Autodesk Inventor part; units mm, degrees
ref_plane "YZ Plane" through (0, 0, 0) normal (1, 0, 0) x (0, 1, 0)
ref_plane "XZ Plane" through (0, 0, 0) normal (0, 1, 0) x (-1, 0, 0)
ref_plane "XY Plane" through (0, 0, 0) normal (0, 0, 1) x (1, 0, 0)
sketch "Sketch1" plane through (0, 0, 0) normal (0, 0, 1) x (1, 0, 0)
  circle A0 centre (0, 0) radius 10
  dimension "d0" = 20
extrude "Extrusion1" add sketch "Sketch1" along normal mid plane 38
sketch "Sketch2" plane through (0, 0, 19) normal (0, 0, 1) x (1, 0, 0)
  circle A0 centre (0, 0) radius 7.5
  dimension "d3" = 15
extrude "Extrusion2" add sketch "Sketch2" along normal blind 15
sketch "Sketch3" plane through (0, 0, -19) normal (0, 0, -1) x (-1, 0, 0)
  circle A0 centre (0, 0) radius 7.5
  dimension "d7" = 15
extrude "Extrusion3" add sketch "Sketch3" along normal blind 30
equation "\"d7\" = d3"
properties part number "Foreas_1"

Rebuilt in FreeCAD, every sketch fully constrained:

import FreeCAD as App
import Part
import Sketcher
Q = App.Units.Quantity

doc = App.newDocument("Part")
body = doc.addObject("PartDesign::Body", "Body")

# Sketch on XY plane
sketch1 = body.newObject("Sketcher::SketchObject", "Sketch")
sketch1.AttachmentSupport = (doc.getObject("XY_Plane"), [""])
sketch1.MapMode = "FlatFace"
sketch1.addGeometry(Part.Circle(App.Vector(0, 0, 0), App.Vector(0, 0, 1), 10), False)
sketch1.addConstraint([
    Sketcher.Constraint("Coincident", 0, 3, -1, 1),
    Sketcher.Constraint("Diameter", 0, Q("20 mm")),
])
pad1 = body.newObject("PartDesign::Pad", "Pad")
pad1.Profile = sketch1
pad1.Length = 38
pad1.Midplane = True

# Sketch on XY plane
sketch2 = body.newObject("Sketcher::SketchObject", "Sketch001")
sketch2.AttachmentSupport = (doc.getObject("XY_Plane"), [""])
sketch2.MapMode = "FlatFace"
sketch2.AttachmentOffset = App.Placement(App.Vector(0, 0, 19), App.Rotation())
sketch2.addGeometry(Part.Circle(App.Vector(0, 0, 0), App.Vector(0, 0, 1), 8), False)
sketch2.addConstraint([
    Sketcher.Constraint("Coincident", 0, 3, -1, 1),
    Sketcher.Constraint("Diameter", 0, Q("15 mm")),
])
pad2 = body.newObject("PartDesign::Pad", "Pad001")
pad2.Profile = sketch2
pad2.Length = 15

# Sketch on XY plane
sketch3 = body.newObject("Sketcher::SketchObject", "Sketch002")
sketch3.AttachmentSupport = (doc.getObject("XY_Plane"), [""])
sketch3.MapMode = "FlatFace"
sketch3.AttachmentOffset = App.Placement(App.Vector(0, 0, -19), App.Rotation())
sketch3.addGeometry(Part.Circle(App.Vector(0, 0, 0), App.Vector(0, 0, 1), 8), False)
sketch3.addConstraint([
    Sketcher.Constraint("Coincident", 0, 3, -1, 1),
    Sketcher.Constraint("Diameter", 0, Q("15 mm")),
])
pad3 = body.newObject("PartDesign::Pad", "Pad002")
pad3.Profile = sketch3
pad3.Length = 30
pad3.Reversed = True

doc.recompute()
